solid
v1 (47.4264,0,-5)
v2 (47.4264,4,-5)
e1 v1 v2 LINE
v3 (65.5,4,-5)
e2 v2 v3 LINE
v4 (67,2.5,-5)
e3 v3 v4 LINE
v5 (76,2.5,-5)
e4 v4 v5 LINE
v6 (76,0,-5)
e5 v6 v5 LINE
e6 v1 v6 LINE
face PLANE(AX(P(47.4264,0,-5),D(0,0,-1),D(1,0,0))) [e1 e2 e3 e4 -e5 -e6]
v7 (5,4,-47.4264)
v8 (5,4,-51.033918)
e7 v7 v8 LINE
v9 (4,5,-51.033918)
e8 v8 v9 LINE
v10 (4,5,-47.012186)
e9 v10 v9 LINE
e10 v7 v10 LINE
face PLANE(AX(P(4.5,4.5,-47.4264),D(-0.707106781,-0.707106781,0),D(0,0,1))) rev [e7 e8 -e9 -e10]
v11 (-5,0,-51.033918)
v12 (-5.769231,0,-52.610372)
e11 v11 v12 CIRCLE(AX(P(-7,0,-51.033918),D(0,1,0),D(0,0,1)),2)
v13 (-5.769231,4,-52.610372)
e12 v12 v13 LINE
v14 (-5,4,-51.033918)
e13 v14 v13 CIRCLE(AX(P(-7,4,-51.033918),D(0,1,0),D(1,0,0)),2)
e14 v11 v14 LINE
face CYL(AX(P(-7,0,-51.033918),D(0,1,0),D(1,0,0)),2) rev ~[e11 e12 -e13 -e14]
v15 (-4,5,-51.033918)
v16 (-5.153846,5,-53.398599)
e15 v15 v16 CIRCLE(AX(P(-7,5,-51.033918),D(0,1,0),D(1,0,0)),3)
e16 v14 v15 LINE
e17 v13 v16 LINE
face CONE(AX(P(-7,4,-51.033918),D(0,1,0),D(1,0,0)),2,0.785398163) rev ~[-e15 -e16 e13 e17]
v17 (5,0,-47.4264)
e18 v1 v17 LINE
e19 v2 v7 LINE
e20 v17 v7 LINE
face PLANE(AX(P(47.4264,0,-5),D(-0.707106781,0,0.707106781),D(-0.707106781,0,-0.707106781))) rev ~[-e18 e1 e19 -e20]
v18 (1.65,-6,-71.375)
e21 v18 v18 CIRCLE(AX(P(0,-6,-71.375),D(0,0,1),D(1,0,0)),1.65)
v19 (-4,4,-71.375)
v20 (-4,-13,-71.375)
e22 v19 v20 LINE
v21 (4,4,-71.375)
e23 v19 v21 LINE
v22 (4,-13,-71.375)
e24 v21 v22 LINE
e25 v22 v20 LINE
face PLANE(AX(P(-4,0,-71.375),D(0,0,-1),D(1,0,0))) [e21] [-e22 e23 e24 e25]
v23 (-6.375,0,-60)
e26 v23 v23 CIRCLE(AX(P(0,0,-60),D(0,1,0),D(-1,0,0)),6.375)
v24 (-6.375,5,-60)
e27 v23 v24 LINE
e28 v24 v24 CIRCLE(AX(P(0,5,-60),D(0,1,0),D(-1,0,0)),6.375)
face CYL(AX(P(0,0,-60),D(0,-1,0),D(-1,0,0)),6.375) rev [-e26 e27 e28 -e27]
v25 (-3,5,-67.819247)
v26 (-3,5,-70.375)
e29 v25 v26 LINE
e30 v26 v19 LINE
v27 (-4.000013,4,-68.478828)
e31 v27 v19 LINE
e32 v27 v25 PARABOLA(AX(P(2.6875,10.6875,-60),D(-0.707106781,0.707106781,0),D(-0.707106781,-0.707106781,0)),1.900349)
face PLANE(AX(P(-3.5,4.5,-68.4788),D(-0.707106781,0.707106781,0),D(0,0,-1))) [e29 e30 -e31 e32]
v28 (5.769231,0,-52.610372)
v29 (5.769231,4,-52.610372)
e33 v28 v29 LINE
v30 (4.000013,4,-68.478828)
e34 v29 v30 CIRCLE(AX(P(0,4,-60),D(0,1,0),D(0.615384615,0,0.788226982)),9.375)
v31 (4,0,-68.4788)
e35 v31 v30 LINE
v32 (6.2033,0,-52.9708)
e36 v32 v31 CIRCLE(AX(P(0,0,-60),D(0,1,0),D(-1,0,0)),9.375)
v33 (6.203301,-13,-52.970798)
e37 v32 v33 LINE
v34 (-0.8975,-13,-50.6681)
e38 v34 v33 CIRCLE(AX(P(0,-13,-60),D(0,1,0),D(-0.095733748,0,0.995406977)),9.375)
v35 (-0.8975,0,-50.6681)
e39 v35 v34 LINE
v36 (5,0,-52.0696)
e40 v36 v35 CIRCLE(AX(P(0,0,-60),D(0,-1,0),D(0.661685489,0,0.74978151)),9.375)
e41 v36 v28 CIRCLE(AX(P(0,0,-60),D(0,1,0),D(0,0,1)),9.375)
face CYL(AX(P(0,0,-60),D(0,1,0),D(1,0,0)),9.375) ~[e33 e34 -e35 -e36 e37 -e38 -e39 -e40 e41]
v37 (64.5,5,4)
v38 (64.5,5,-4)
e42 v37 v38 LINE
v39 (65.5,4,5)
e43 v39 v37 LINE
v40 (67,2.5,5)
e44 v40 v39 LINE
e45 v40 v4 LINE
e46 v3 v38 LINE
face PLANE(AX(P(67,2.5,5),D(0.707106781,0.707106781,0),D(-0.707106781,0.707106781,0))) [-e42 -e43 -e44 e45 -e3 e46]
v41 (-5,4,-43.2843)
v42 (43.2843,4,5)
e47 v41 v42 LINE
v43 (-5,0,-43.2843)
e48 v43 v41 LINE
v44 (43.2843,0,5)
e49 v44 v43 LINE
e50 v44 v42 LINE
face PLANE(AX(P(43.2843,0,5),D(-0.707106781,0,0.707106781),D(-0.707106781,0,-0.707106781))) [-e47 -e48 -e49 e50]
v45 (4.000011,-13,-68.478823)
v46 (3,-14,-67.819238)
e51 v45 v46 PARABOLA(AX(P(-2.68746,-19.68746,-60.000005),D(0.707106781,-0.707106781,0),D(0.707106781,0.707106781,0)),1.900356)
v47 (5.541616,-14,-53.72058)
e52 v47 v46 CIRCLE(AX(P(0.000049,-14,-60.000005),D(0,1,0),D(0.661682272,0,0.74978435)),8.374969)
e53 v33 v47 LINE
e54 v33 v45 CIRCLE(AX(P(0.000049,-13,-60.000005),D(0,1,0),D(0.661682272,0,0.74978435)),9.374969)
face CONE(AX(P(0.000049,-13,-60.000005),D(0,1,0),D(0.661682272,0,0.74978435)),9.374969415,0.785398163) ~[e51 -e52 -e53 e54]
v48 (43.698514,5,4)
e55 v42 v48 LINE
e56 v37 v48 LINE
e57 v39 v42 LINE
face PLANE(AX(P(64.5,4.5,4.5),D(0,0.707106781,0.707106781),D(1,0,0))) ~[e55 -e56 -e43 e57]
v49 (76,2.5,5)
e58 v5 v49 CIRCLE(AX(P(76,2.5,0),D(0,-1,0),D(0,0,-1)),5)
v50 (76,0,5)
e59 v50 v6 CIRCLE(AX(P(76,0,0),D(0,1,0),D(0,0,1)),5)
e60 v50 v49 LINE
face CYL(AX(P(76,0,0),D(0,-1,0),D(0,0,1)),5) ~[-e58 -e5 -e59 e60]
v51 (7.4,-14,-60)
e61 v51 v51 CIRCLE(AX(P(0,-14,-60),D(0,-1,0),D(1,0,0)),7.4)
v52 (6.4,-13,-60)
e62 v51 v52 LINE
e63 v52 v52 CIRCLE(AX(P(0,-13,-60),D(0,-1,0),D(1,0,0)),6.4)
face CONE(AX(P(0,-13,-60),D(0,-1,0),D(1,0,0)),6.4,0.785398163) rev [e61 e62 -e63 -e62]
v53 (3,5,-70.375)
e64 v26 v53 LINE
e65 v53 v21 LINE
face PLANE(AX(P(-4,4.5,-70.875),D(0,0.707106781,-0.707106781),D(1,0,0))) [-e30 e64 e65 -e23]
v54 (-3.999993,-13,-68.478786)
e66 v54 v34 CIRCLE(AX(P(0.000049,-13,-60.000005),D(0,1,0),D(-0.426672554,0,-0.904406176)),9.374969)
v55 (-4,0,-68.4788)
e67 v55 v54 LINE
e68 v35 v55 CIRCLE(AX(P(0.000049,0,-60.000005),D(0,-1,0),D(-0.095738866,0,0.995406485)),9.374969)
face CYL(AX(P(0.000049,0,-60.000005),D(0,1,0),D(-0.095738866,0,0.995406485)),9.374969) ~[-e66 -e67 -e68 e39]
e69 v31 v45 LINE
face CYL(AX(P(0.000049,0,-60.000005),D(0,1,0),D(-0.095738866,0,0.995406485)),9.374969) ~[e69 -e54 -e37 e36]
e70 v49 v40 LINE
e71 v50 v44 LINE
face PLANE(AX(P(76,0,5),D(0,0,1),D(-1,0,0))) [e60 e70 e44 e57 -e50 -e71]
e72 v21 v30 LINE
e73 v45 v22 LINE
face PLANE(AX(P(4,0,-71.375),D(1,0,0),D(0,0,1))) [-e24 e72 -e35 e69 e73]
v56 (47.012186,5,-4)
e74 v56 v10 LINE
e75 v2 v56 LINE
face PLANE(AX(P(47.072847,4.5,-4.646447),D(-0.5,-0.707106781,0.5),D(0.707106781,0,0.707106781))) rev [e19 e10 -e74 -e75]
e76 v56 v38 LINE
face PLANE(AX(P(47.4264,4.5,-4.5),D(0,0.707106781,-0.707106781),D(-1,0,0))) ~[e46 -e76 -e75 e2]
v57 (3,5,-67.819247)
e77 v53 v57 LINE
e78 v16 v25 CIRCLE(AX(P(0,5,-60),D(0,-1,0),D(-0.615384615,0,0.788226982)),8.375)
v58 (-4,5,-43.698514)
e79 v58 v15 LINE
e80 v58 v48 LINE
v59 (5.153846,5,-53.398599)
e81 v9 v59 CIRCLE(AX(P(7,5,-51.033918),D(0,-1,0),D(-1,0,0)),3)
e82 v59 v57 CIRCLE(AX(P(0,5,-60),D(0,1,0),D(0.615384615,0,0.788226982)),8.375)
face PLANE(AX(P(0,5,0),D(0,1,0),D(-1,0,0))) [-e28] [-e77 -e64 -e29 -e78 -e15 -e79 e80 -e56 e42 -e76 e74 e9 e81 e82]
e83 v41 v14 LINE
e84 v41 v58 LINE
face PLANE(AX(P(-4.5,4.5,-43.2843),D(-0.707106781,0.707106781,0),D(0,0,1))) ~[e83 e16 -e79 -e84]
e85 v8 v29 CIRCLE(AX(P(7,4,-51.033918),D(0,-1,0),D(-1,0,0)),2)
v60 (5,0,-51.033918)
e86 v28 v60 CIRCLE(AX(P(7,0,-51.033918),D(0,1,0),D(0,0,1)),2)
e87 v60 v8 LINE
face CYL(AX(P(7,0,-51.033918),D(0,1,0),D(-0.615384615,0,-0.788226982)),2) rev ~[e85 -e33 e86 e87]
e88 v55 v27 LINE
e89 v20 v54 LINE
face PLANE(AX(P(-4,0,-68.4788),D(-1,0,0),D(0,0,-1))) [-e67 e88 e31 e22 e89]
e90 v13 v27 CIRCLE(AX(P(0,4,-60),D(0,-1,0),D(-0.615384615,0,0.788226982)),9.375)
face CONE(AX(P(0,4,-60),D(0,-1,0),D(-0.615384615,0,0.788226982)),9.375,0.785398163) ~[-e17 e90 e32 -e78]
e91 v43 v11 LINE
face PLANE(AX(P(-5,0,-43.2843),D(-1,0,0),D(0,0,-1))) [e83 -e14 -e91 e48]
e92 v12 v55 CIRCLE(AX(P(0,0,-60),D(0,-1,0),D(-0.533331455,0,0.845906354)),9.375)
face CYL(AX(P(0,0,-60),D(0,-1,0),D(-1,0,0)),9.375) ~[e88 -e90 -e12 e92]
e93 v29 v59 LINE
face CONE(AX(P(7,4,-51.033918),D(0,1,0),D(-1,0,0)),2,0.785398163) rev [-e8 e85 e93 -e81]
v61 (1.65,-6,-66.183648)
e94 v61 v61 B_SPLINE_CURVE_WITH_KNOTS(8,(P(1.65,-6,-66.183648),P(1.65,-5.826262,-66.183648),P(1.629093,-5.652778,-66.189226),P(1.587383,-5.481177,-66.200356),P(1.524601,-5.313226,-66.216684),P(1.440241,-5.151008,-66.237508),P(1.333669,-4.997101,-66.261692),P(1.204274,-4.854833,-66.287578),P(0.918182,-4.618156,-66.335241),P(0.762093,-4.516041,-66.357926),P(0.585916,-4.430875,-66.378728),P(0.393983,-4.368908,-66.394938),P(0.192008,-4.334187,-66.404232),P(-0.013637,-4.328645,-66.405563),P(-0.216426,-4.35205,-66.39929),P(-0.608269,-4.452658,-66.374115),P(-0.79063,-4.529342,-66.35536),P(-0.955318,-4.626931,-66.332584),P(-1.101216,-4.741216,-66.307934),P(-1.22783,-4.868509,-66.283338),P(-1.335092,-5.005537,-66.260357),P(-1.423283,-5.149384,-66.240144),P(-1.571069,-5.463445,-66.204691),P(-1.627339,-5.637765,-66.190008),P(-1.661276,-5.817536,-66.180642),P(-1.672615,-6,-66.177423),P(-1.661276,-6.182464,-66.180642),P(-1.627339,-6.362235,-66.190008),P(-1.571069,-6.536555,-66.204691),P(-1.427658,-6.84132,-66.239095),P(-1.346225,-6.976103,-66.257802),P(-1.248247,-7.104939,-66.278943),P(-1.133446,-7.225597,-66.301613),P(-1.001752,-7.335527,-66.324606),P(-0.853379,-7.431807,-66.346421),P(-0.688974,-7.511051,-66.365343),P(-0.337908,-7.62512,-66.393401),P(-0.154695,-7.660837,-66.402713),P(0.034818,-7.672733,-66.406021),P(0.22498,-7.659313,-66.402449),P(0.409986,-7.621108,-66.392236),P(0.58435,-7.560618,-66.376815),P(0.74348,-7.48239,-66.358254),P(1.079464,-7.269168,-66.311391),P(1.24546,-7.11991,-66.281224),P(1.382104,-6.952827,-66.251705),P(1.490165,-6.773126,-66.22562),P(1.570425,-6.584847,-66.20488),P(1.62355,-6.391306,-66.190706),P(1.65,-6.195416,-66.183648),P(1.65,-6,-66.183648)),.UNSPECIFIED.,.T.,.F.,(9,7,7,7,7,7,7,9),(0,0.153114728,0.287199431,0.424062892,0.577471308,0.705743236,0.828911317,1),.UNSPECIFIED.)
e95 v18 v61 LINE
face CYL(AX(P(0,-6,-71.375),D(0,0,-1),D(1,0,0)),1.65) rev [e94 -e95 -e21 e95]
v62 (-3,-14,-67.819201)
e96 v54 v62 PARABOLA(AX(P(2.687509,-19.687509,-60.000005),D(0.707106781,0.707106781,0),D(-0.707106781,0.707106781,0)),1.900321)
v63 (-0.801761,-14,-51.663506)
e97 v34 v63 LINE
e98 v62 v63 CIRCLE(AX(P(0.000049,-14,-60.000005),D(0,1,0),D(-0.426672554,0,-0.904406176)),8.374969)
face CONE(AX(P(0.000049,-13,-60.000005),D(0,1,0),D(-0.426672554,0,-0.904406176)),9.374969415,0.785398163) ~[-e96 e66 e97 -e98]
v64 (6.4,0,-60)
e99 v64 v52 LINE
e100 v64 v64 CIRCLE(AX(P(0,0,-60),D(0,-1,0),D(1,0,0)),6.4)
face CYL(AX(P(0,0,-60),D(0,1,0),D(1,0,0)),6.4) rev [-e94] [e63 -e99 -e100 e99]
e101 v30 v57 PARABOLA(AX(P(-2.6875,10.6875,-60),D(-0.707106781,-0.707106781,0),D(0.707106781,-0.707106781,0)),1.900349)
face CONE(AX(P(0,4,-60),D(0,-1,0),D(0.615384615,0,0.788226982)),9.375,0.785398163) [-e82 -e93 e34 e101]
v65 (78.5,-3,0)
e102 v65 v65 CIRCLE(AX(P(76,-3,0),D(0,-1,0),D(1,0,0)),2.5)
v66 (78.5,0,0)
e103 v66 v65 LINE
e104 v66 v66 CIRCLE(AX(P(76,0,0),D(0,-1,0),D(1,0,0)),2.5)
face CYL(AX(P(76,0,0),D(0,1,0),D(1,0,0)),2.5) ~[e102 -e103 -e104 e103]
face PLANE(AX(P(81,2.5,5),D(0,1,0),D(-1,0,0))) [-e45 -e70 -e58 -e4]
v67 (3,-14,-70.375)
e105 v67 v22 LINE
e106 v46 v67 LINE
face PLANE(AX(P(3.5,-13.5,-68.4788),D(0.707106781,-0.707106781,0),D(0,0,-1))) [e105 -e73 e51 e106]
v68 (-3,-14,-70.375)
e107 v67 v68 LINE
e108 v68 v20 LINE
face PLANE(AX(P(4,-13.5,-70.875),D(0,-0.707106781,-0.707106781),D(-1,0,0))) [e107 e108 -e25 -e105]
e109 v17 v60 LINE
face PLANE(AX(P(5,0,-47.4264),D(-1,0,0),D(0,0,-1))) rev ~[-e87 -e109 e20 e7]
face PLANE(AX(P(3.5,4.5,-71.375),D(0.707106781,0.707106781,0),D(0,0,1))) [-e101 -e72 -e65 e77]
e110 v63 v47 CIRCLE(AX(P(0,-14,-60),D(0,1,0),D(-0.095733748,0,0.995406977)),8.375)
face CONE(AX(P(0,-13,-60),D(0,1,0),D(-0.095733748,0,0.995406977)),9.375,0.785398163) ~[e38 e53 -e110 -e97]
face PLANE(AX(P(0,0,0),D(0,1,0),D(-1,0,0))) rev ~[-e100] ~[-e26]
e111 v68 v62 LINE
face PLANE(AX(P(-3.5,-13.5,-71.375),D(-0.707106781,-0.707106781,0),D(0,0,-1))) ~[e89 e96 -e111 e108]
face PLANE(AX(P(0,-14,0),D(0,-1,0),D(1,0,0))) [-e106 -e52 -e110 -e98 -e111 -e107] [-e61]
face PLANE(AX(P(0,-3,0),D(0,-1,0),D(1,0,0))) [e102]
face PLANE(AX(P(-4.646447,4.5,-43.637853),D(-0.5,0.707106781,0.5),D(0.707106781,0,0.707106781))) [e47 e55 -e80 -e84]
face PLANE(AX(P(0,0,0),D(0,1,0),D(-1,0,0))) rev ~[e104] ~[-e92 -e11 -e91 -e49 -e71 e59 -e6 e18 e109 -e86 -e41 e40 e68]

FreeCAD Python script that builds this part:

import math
import FreeCAD as App
import Part
import Sketcher

V = App.Vector
Q = App.Units.Quantity


def edges_at(feature, points):
    """Names of the edges that pass closest to the given points."""
    edges = feature.Shape.Edges
    near = lambda p: min(range(len(edges)), key=lambda i: edges[i].distToShape(Part.Vertex(*p))[0])
    return sorted({f"Edge{near(p) + 1}" for p in points})


def add_polygon(sketch, points):
    """Adds a closed chain of lines whose ends are joined by coincident constraints."""
    first, n = sketch.GeometryCount, len(points)
    for a, b in zip(points, points[1:] + points[:1]):
        sketch.addGeometry(Part.LineSegment(App.Vector(*a, 0), App.Vector(*b, 0)), False)
    for i in range(n):
        sketch.addConstraint(Sketcher.Constraint("Coincident", first + i, 2, first + (i + 1) % n, 1))

doc = App.newDocument("Part")
body = doc.addObject("PartDesign::Body", "Body")

# Sketch on XZ plane
sketch1 = body.newObject("Sketcher::SketchObject", "Sketch")
sketch1.AttachmentSupport = (doc.getObject("XZ_Plane"), [""])
sketch1.MapMode = "FlatFace"
sketch1.addGeometry(Part.LineSegment(V(76, -5, 0), V(47.4, -5, 0)), False)
sketch1.addGeometry(Part.LineSegment(V(47.4, -5, 0), V(5, -47.4, 0)), False)
sketch1.addGeometry(Part.LineSegment(V(5, -47.4, 0), V(5, -52.1, 0)), False)
sketch1.addGeometry(Part.ArcOfCircle(Part.Circle(V(0, -60, 0), V(0, 0, 1), 9.4), math.radians(-65), math.radians(58)), False)
sketch1.addGeometry(Part.LineSegment(V(4, -68.5, 0), V(4, -71.4, 0)), False)
sketch1.addGeometry(Part.LineSegment(V(4, -71.4, 0), V(-4, -71.4, 0)), False)
sketch1.addGeometry(Part.LineSegment(V(-4, -71.4, 0), V(-4, -68.5, 0)), False)
sketch1.addGeometry(Part.ArcOfCircle(Part.Circle(V(0, -60, 0), V(0, 0, 1), 9.4), math.radians(122), math.radians(245)), False)
sketch1.addGeometry(Part.LineSegment(V(-5, -52.1, 0), V(-5, -43.3, 0)), False)
sketch1.addGeometry(Part.LineSegment(V(-5, -43.3, 0), V(43.3, 5, 0)), False)
sketch1.addGeometry(Part.LineSegment(V(43.3, 5, 0), V(76, 5, 0)), False)
sketch1.addGeometry(Part.ArcOfCircle(Part.Circle(V(76, 0, 0), V(0, 0, 1), 5), math.radians(-90), math.radians(90)), False)
sketch1.addGeometry(Part.Circle(V(0, -60, 0), V(0, 0, 1), 6.4), False)
sketch1.addConstraint(Sketcher.Constraint("Coincident", 0, 2, 1, 1))
sketch1.addConstraint(Sketcher.Constraint("Coincident", 1, 2, 2, 1))
sketch1.addConstraint(Sketcher.Constraint("Coincident", 2, 2, 3, 2))
sketch1.addConstraint(Sketcher.Constraint("Coincident", 3, 1, 4, 1))
sketch1.addConstraint(Sketcher.Constraint("Coincident", 4, 2, 5, 1))
sketch1.addConstraint(Sketcher.Constraint("Coincident", 5, 2, 6, 1))
sketch1.addConstraint(Sketcher.Constraint("Coincident", 6, 2, 7, 2))
sketch1.addConstraint(Sketcher.Constraint("Coincident", 7, 1, 8, 1))
sketch1.addConstraint(Sketcher.Constraint("Coincident", 8, 2, 9, 1))
sketch1.addConstraint(Sketcher.Constraint("Coincident", 9, 2, 10, 1))
sketch1.addConstraint(Sketcher.Constraint("Tangent", 10, 2, 11, 2))
sketch1.addConstraint(Sketcher.Constraint("Tangent", 11, 1, 0, 1))
sketch1.addConstraint(Sketcher.Constraint("Horizontal", 0))
sketch1.addConstraint(Sketcher.Constraint("Vertical", 2))
sketch1.addConstraint(Sketcher.Constraint("Vertical", 4))
sketch1.addConstraint(Sketcher.Constraint("Horizontal", 5))
sketch1.addConstraint(Sketcher.Constraint("Vertical", 6))
sketch1.addConstraint(Sketcher.Constraint("Vertical", 8))
sketch1.addConstraint(Sketcher.Constraint("Horizontal", 10))
sketch1.addConstraint(Sketcher.Constraint("Coincident", 7, 3, 3, 3))
sketch1.addConstraint(Sketcher.Constraint("Coincident", 12, 3, 3, 3))
sketch1.addConstraint(Sketcher.Constraint("Equal", 3, 7))
sketch1.addConstraint(Sketcher.Constraint("Symmetric", 3, 1, 6, 2, -2))
sketch1.addConstraint(Sketcher.Constraint("PointOnObject", 11, 3, -1))
sketch1.addConstraint(Sketcher.Constraint("Parallel", 1, 9))
sketch1.addConstraint(Sketcher.Constraint("Horizontal", 2, 2, 7, 1))
sketch1.addConstraint(Sketcher.Constraint("Radius", 11, 5.0))
sketch1.addConstraint(Sketcher.Constraint("Diameter", 12, 12.75))
sketch1.addConstraint(Sketcher.Constraint("DistanceX", 5, 2, 5, 1, 8.0))
sketch1.addConstraint(Sketcher.Constraint("Angle", 9, Q("45 deg")))
sketch1.addConstraint(Sketcher.Constraint("Distance", 1, 60.0))
sketch1.addConstraint(Sketcher.Constraint("DistanceY", 3, 3, -1, 1, 60.0))
sketch1.addConstraint(Sketcher.Constraint("DistanceX", -1, 1, 11, 3, 76.0))
sketch1.addConstraint(Sketcher.Constraint("DistanceX", -1, 1, 1, 2, 5.0))
sketch1.addConstraint(Sketcher.Constraint("Radius", 3, 9.375))
sketch1.addConstraint(Sketcher.Constraint("DistanceX", 10, 1, 10, 2, 32.7157))
sketch1.addConstraint(Sketcher.Constraint("DistanceY", 4, 2, 4, 1, 2.8962))
pad1 = body.newObject("PartDesign::Pad", "Pad")
pad1.Profile = sketch1
pad1.Length = 5
pad1.Reversed = True

# Sketch on XZ plane
sketch2 = body.newObject("Sketcher::SketchObject", "Sketch001")
sketch2.AttachmentSupport = (doc.getObject("XZ_Plane"), [""])
sketch2.MapMode = "FlatFace"
sketch2.addGeometry(Part.Circle(V(76, 0, 0), V(0, 0, 1), 2.5), False)
sketch2.addConstraint(Sketcher.Constraint("PointOnObject", 0, 3, -1))
sketch2.addConstraint(Sketcher.Constraint("Diameter", 0, 5.0))
sketch2.addConstraint(Sketcher.Constraint("DistanceX", -1, 1, 0, 3, 76.0))
pad2 = body.newObject("PartDesign::Pad", "Pad001")
pad2.Profile = sketch2
pad2.Length = 3

# Sketch on XY plane
sketch3 = body.newObject("Sketcher::SketchObject", "Sketch002")
sketch3.AttachmentSupport = (doc.getObject("XY_Plane"), [""])
sketch3.MapMode = "FlatFace"
sketch3.AttachmentOffset = App.Placement(V(0, 0, 5), App.Rotation())
add_polygon(sketch3, [(67, 2.5), (81, 2.5), (81, 5), (64.5, 5)])  # lines 0-3
sketch3.addConstraint(Sketcher.Constraint("Horizontal", 0))
sketch3.addConstraint(Sketcher.Constraint("Vertical", 1))
sketch3.addConstraint(Sketcher.Constraint("Horizontal", 2))
sketch3.addConstraint(Sketcher.Constraint("DistanceX", 0, 1, 0, 2, 14.0))
sketch3.addConstraint(Sketcher.Constraint("Angle", 3, Q("-45 deg")))
sketch3.addConstraint(Sketcher.Constraint("DistanceX", 2, 2, 2, 1, 16.5))
sketch3.addConstraint(Sketcher.Constraint("DistanceX", -1, 1, 0, 2, 81.0))
sketch3.addConstraint(Sketcher.Constraint("DistanceY", -1, 1, 1, 2, 5.0))
pocket1 = body.newObject("PartDesign::Pocket", "Pocket")
pocket1.Profile = sketch3
pocket1.Type = "ThroughAll"

# Sketch on XZ plane
sketch4 = body.newObject("Sketcher::SketchObject", "Sketch003")
sketch4.AttachmentSupport = (doc.getObject("XZ_Plane"), [""])
sketch4.MapMode = "FlatFace"
sketch4.addGeometry(Part.ArcOfCircle(Part.Circle(V(0, -60, 0), V(0, 0, 1), 9.4), math.radians(95), math.radians(245)), False)
sketch4.addGeometry(Part.LineSegment(V(-4, -68.5, 0), V(-4, -71.4, 0)), False)
sketch4.addGeometry(Part.LineSegment(V(-4, -71.4, 0), V(4, -71.4, 0)), False)
sketch4.addGeometry(Part.LineSegment(V(4, -71.4, 0), V(4, -68.5, 0)), False)
sketch4.addGeometry(Part.ArcOfCircle(Part.Circle(V(0, -60, 0), V(0, 0, 1), 9.4), math.radians(-65), math.radians(49)), False)
sketch4.addGeometry(Part.ArcOfCircle(Part.Circle(V(0, -60, 0), V(0, 0, 1), 9.4), math.radians(49), math.radians(95)), False)
sketch4.addGeometry(Part.Circle(V(0, -60, 0), V(0, 0, 1), 6.4), False)
sketch4.addConstraint(Sketcher.Constraint("Coincident", 0, 2, 1, 1))
sketch4.addConstraint(Sketcher.Constraint("Coincident", 1, 2, 2, 1))
sketch4.addConstraint(Sketcher.Constraint("Coincident", 2, 2, 3, 1))
sketch4.addConstraint(Sketcher.Constraint("Coincident", 3, 2, 4, 1))
sketch4.addConstraint(Sketcher.Constraint("Tangent", 4, 2, 5, 1))
sketch4.addConstraint(Sketcher.Constraint("Tangent", 5, 2, 0, 1))
sketch4.addConstraint(Sketcher.Constraint("Vertical", 1))
sketch4.addConstraint(Sketcher.Constraint("Horizontal", 2))
sketch4.addConstraint(Sketcher.Constraint("Vertical", 3))
sketch4.addConstraint(Sketcher.Constraint("Coincident", 4, 3, 0, 3))
sketch4.addConstraint(Sketcher.Constraint("Coincident", 6, 3, 0, 3))
sketch4.addConstraint(Sketcher.Constraint("Symmetric", 0, 2, 3, 2, -2))
sketch4.addConstraint(Sketcher.Constraint("Diameter", 6, 12.8))
sketch4.addConstraint(Sketcher.Constraint("DistanceX", 2, 1, 2, 2, 8.0))
sketch4.addConstraint(Sketcher.Constraint("DistanceY", 0, 3, -1, 1, 60.0))
sketch4.addConstraint(Sketcher.Constraint("Radius", 0, 9.375))
sketch4.addConstraint(Sketcher.Constraint("DistanceY", 1, 2, 1, 1, 2.8962))
sketch4.addConstraint(Sketcher.Constraint("DistanceY", 5, 2, -1, 1, 50.668))
sketch4.addConstraint(Sketcher.Constraint("DistanceY", 3, 2, 4, 2, 15.508))
pad3 = body.newObject("PartDesign::Pad", "Pad002")
pad3.Profile = sketch4
pad3.Length = 14

# Sketch on XY plane
sketch5 = body.newObject("Sketcher::SketchObject", "Sketch004")
sketch5.AttachmentSupport = (doc.getObject("XY_Plane"), [""])
sketch5.MapMode = "FlatFace"
sketch5.AttachmentOffset = App.Placement(V(0, 0, -71.375), App.Rotation())
sketch5.addGeometry(Part.Circle(V(0, -6, 0), V(0, 0, 1), 1.6), False)
sketch5.addConstraint(Sketcher.Constraint("PointOnObject", 0, 3, -2))
sketch5.addConstraint(Sketcher.Constraint("Diameter", 0, 3.3))
sketch5.addConstraint(Sketcher.Constraint("DistanceY", 0, 3, -1, 1, 6.0))
pocket2 = body.newObject("PartDesign::Pocket", "Pocket001")
pocket2.Profile = sketch5
pocket2.Length = 5.1914
pocket2.Reversed = True
doc.recompute()

fillet = body.newObject("PartDesign::Fillet", "Fillet")
fillet.Base = (pocket2, edges_at(pocket2, [(5, 2.5, -52.07), (-5, 2.5, -52.07)]))
fillet.Radius = 2
doc.recompute()

chamfer = body.newObject("PartDesign::Chamfer", "Chamfer")
chamfer.Base = (fillet, edges_at(fillet, [
    (53.892, 5, 5),
    (55.963, 5, -5),
    (5, 5, -49.23),
    (5.203, 5, -51.911),
    (9.317, 5, -61.039),
    (-5, 5, -47.159),
    (-5.203, 5, -51.911),
    (-9.317, 5, -61.039),
    (4, 5, -69.927),
    (0, 5, -71.375),
    (-4, 5, -69.927),
    (26.213, 5, -26.213),
    (19.142, 5, -19.142),
]))
chamfer.Size = 1
doc.recompute()

chamfer2 = body.newObject("PartDesign::Chamfer", "Chamfer001")
chamfer2.Base = (chamfer, edges_at(chamfer, [
    (-6.4, -14, -60),
    (0, -14, -50.625),
    (4, -14, -69.927),
    (0, -14, -71.375),
    (-4, -14, -69.927),
]))
chamfer2.Size = 1

doc.recompute()
